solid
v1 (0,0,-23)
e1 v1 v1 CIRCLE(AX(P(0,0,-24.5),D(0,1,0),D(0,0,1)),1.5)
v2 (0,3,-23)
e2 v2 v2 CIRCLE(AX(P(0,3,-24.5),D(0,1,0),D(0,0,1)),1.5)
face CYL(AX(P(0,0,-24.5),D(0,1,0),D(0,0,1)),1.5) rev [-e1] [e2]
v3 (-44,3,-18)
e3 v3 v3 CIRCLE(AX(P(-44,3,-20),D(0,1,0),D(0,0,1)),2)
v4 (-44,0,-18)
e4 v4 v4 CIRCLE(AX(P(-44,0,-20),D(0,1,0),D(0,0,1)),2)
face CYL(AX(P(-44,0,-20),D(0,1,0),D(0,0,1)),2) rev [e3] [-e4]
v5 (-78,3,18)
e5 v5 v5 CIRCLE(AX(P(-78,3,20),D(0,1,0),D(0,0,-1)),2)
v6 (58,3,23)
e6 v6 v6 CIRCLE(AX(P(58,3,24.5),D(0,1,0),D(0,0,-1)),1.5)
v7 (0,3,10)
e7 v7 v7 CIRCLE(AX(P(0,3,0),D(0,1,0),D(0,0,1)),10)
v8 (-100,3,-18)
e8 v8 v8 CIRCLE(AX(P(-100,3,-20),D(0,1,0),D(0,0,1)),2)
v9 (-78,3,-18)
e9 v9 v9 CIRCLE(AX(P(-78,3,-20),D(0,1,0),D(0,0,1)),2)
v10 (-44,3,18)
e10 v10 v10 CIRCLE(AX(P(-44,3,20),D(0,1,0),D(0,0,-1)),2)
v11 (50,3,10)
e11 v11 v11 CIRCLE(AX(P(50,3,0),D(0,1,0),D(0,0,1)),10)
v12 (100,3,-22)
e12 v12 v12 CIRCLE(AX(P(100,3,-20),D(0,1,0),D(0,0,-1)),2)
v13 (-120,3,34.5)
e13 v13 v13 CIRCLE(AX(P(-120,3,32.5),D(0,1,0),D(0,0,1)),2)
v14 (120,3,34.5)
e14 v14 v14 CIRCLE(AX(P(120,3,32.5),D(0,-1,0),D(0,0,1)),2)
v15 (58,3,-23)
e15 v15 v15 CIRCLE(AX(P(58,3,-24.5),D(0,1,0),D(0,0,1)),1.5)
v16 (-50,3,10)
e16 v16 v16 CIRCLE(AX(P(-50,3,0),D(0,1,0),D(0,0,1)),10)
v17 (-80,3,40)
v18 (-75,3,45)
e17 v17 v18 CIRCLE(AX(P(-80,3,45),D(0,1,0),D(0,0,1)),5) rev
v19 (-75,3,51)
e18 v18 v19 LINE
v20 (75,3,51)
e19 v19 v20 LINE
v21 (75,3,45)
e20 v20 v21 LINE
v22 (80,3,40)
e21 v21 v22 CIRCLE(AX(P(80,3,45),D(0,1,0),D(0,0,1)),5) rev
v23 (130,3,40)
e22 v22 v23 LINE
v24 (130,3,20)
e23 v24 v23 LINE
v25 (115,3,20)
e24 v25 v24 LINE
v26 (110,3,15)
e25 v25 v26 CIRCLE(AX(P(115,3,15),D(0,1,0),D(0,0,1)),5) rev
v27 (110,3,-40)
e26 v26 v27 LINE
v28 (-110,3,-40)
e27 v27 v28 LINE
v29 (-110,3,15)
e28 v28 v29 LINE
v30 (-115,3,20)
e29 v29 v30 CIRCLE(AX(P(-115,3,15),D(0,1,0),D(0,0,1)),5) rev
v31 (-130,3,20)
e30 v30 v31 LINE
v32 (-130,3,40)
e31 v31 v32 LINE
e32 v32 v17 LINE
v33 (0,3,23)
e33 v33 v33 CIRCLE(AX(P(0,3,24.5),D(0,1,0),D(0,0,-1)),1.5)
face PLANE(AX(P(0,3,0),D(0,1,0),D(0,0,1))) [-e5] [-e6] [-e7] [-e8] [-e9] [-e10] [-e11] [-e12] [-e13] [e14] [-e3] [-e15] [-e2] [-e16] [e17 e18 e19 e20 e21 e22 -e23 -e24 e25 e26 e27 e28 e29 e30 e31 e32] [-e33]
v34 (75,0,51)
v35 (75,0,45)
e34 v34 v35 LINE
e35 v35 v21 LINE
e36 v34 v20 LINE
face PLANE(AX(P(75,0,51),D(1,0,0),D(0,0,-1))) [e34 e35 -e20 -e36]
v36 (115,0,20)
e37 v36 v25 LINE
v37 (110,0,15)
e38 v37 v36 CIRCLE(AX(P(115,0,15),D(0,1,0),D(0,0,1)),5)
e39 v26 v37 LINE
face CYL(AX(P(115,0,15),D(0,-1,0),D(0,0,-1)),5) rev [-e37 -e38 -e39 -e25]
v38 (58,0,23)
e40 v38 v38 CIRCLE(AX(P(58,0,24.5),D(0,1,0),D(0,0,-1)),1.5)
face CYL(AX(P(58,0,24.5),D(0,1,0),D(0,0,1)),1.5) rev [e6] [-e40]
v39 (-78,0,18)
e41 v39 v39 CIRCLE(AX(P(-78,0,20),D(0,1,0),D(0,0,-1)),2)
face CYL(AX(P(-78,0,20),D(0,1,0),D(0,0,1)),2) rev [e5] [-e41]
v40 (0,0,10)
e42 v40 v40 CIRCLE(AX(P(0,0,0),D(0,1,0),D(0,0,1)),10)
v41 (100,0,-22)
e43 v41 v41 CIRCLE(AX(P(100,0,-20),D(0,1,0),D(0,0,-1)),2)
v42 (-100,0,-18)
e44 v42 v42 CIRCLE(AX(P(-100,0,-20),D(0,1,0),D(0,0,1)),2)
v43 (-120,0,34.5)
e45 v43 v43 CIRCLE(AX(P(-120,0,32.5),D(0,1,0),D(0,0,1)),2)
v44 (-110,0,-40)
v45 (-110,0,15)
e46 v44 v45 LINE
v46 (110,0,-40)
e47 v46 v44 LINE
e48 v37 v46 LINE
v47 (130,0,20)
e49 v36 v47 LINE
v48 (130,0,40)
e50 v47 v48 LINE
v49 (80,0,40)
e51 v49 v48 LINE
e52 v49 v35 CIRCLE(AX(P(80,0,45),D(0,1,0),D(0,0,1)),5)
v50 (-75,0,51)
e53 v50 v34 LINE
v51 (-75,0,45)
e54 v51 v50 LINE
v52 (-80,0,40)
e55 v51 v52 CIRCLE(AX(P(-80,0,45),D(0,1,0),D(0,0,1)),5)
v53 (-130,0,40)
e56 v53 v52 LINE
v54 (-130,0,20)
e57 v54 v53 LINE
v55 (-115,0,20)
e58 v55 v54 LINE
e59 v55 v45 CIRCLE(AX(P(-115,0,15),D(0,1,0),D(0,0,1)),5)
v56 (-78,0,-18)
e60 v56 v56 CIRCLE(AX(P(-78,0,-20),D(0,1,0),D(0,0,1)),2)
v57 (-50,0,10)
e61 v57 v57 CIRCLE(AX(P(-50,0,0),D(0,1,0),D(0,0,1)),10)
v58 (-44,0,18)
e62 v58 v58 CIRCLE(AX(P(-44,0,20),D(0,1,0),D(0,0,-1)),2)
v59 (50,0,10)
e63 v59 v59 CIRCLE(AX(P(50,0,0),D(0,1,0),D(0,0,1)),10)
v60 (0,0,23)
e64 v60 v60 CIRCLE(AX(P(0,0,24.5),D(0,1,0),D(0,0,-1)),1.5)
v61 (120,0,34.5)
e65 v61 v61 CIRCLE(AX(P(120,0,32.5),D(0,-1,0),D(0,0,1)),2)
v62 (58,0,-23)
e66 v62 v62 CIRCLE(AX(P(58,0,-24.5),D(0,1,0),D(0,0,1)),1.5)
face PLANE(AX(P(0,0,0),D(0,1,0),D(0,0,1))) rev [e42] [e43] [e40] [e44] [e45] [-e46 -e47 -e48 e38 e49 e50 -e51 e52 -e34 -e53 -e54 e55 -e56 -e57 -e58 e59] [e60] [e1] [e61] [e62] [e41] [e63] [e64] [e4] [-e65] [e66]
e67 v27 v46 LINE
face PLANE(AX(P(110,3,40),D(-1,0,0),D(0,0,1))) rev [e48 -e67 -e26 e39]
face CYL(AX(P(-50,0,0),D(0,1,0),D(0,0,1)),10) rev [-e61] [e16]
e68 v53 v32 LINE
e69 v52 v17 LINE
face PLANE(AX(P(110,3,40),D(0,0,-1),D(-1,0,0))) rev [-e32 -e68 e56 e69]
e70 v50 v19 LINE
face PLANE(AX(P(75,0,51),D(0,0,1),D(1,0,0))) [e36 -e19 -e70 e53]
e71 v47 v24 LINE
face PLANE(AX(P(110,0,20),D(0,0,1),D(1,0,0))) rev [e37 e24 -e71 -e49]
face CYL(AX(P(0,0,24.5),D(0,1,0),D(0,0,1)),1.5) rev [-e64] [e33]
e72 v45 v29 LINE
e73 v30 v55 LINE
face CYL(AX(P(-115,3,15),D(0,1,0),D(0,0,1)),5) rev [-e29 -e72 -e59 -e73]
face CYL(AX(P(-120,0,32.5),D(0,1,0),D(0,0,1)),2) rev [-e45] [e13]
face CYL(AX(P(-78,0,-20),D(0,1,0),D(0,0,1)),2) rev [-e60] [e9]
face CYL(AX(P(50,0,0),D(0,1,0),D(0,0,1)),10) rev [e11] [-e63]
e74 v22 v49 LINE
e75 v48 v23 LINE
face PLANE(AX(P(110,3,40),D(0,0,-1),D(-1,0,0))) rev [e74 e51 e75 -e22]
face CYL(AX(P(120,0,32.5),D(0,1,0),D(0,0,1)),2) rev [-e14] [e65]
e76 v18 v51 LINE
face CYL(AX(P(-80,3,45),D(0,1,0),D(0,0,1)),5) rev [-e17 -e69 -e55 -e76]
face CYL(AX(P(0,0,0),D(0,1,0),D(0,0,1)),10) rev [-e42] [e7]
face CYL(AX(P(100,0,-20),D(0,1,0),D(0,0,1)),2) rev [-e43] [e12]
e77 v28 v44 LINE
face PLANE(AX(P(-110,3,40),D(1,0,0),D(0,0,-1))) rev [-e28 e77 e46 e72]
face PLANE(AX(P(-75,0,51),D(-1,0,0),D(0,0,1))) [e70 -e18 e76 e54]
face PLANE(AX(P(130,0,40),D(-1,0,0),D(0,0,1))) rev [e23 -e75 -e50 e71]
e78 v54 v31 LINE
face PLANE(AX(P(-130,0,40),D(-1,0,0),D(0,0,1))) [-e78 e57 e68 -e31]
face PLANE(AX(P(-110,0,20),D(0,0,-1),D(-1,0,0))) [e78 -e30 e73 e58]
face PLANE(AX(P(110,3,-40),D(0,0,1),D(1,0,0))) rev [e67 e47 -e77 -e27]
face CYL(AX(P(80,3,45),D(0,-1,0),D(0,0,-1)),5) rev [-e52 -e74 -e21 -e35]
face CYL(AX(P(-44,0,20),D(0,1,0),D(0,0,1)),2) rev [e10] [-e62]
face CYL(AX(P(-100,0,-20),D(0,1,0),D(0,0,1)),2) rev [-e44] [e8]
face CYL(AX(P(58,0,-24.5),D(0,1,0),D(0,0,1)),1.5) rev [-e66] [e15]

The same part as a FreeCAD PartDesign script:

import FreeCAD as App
import Part
import Sketcher
Q = App.Units.Quantity


def edges_at(feature, points):
    """Names of the edges that pass closest to the given points."""
    edges = feature.Shape.Edges
    near = lambda p: min(range(len(edges)), key=lambda i: edges[i].distToShape(Part.Vertex(*p))[0])
    return sorted({f"Edge{near(p) + 1}" for p in points})


def add_polygon(sketch, points):
    """Adds a closed chain of lines whose ends are joined by coincident constraints."""
    first, n = sketch.GeometryCount, len(points)
    for a, b in zip(points, points[1:] + points[:1]):
        sketch.addGeometry(Part.LineSegment(App.Vector(*a, 0), App.Vector(*b, 0)), False)
    for i in range(n):
        sketch.addConstraint(Sketcher.Constraint("Coincident", first + i, 2, first + (i + 1) % n, 1))

doc = App.newDocument("Part")
body = doc.addObject("PartDesign::Body", "Body")

# Sketch on XZ plane
sketch1 = body.newObject("Sketcher::SketchObject", "Sketch")
sketch1.AttachmentSupport = (doc.getObject("XZ_Plane"), [""])
sketch1.MapMode = "FlatFace"
add_polygon(sketch1, [(-110, -40), (-110, 40), (110, 40), (110, -40)])  # lines 0-3
sketch1.addConstraint(Sketcher.Constraint("Vertical", 0))
sketch1.addConstraint(Sketcher.Constraint("Horizontal", 1))
sketch1.addConstraint(Sketcher.Constraint("Vertical", 2))
sketch1.addConstraint(Sketcher.Constraint("Horizontal", 3))
sketch1.addConstraint(Sketcher.Constraint("Symmetric", 0, 2, 2, 2, -1, 1))
sketch1.addConstraint(Sketcher.Constraint("DistanceX", 1, 1, 1, 2, Q("220 mm")))
sketch1.addConstraint(Sketcher.Constraint("DistanceY", 0, 1, 0, 2, Q("80 mm")))
pad1 = body.newObject("PartDesign::Pad", "Pad")
pad1.Profile = sketch1
pad1.Length = 3
pad1.Reversed = True

# Sketch on XZ plane
sketch2 = body.newObject("Sketcher::SketchObject", "Sketch001")
sketch2.AttachmentSupport = (doc.getObject("XZ_Plane"), [""])
sketch2.MapMode = "FlatFace"
sketch2.AttachmentOffset = App.Placement(App.Vector(0, 0, -3), App.Rotation())
add_polygon(sketch2, [(-130, 20), (-130, 40), (-110, 40), (-110, 20)])  # lines 0-3
sketch2.addGeometry(Part.Circle(App.Vector(-120, 32.5, 0), App.Vector(0, 0, 1), 2), False)  # 4
sketch2.addConstraint(Sketcher.Constraint("Vertical", 0))
sketch2.addConstraint(Sketcher.Constraint("Horizontal", 1))
sketch2.addConstraint(Sketcher.Constraint("Vertical", 2))
sketch2.addConstraint(Sketcher.Constraint("Horizontal", 3))
sketch2.addConstraint(Sketcher.Constraint("Equal", 3, 0))
sketch2.addConstraint(Sketcher.Constraint("Diameter", 4, Q("4 mm")))
sketch2.addConstraint(Sketcher.Constraint("DistanceX", 1, 1, 1, 2, Q("20 mm")))
sketch2.addConstraint(Sketcher.Constraint("DistanceX", 4, 3, -1, 1, Q("120 mm")))
sketch2.addConstraint(Sketcher.Constraint("DistanceX", 0, 2, -1, 1, Q("130 mm")))
sketch2.addConstraint(Sketcher.Constraint("DistanceY", -1, 1, 0, 2, Q("40 mm")))
sketch2.addConstraint(Sketcher.Constraint("DistanceY", -1, 1, 4, 3, Q("32.5 mm")))
pad2 = body.newObject("PartDesign::Pad", "Pad001")
pad2.Profile = sketch2
pad2.Length = 3
doc.recompute()

mirrored = body.newObject("PartDesign::Mirrored", "Mirrored")
mirrored.Originals = [pad2]
mirrored.MirrorPlane = (doc.getObject("YZ_Plane"), [""])
body.Tip = mirrored
doc.recompute()

fillet = body.newObject("PartDesign::Fillet", "Fillet")
fillet.Base = (mirrored, edges_at(mirrored, [(-110, 1.5, 20), (110, 1.5, 20)]))
fillet.Radius = 5

# Sketch on XZ plane
sketch3 = body.newObject("Sketcher::SketchObject", "Sketch002")
sketch3.AttachmentSupport = (doc.getObject("XZ_Plane"), [""])
sketch3.MapMode = "FlatFace"
sketch3.AttachmentOffset = App.Placement(App.Vector(0, 0, -3), App.Rotation())
sketch3.addGeometry(Part.Circle(App.Vector(-100, -20, 0), App.Vector(0, 0, 1), 2), False)
sketch3.addGeometry(Part.Circle(App.Vector(100, -20, 0), App.Vector(0, 0, 1), 2), False)
sketch3.addConstraint(Sketcher.Constraint("Equal", 0, 1))
sketch3.addConstraint(Sketcher.Constraint("Symmetric", 0, 3, 1, 3, -2))
sketch3.addConstraint(Sketcher.Constraint("Diameter", 0, Q("4 mm")))
sketch3.addConstraint(Sketcher.Constraint("DistanceX", 0, 3, -1, 1, Q("100 mm")))
sketch3.addConstraint(Sketcher.Constraint("DistanceY", 0, 3, -1, 1, Q("20 mm")))
pocket1 = body.newObject("PartDesign::Pocket", "Pocket")
pocket1.Profile = sketch3
pocket1.Length = 3
pocket1.Reversed = True

# Sketch on XZ plane
sketch4 = body.newObject("Sketcher::SketchObject", "Sketch003")
sketch4.AttachmentSupport = (doc.getObject("XZ_Plane"), [""])
sketch4.MapMode = "FlatFace"
sketch4.AttachmentOffset = App.Placement(App.Vector(0, 0, -3), App.Rotation())
sketch4.addGeometry(Part.Circle(App.Vector(0, -24.5, 0), App.Vector(0, 0, 1), 1.5), False)
sketch4.addGeometry(Part.Circle(App.Vector(58, -24.5, 0), App.Vector(0, 0, 1), 1.5), False)
sketch4.addGeometry(Part.Circle(App.Vector(58, 24.5, 0), App.Vector(0, 0, 1), 1.5), False)
sketch4.addGeometry(Part.Circle(App.Vector(0, 24.5, 0), App.Vector(0, 0, 1), 1.5), False)
sketch4.addConstraint(Sketcher.Constraint("Equal", 0, 1))
sketch4.addConstraint(Sketcher.Constraint("Equal", 1, 2))
sketch4.addConstraint(Sketcher.Constraint("Equal", 2, 3))
sketch4.addConstraint(Sketcher.Constraint("Symmetric", 0, 3, 3, 3, -1, 1))
sketch4.addConstraint(Sketcher.Constraint("Symmetric", 1, 3, 2, 3, -1))
sketch4.addConstraint(Sketcher.Constraint("PointOnObject", 0, 3, -2))
sketch4.addConstraint(Sketcher.Constraint("Horizontal", 0, 3, 1, 3))
sketch4.addConstraint(Sketcher.Constraint("Diameter", 0, Q("3 mm")))
sketch4.addConstraint(Sketcher.Constraint("DistanceX", -1, 1, 1, 3, Q("58 mm")))
sketch4.addConstraint(Sketcher.Constraint("DistanceY", 1, 3, 2, 3, Q("49 mm")))
pocket2 = body.newObject("PartDesign::Pocket", "Pocket001")
pocket2.Profile = sketch4
pocket2.Length = 3
pocket2.Reversed = True

# Sketch on XZ plane
sketch5 = body.newObject("Sketcher::SketchObject", "Sketch004")
sketch5.AttachmentSupport = (doc.getObject("XZ_Plane"), [""])
sketch5.MapMode = "FlatFace"
sketch5.AttachmentOffset = App.Placement(App.Vector(0, 0, -3), App.Rotation())
add_polygon(sketch5, [(-75, 29), (-75, 51), (75, 51), (75, 29)])  # lines 0-3
sketch5.addConstraint(Sketcher.Constraint("Vertical", 0))
sketch5.addConstraint(Sketcher.Constraint("Horizontal", 1))
sketch5.addConstraint(Sketcher.Constraint("Vertical", 2))
sketch5.addConstraint(Sketcher.Constraint("Horizontal", 3))
sketch5.addConstraint(Sketcher.Constraint("DistanceX", 1, 1, 1, 2, Q("150 mm")))
sketch5.addConstraint(Sketcher.Constraint("DistanceY", 0, 1, 0, 2, Q("22 mm")))
sketch5.addConstraint(Sketcher.Constraint("DistanceX", 0, 2, -1, 1, Q("75 mm")))
sketch5.addConstraint(Sketcher.Constraint("DistanceY", -1, 1, 0, 2, Q("51 mm")))
pad3 = body.newObject("PartDesign::Pad", "Pad002")
pad3.Profile = sketch5
pad3.Length = 3
doc.recompute()

fillet2 = body.newObject("PartDesign::Fillet", "Fillet001")
fillet2.Base = (pad3, edges_at(pad3, [(-75, 1.5, 40), (75, 1.5, 40)]))
fillet2.Radius = 5

# Sketch on XZ plane
sketch6 = body.newObject("Sketcher::SketchObject", "Sketch005")
sketch6.AttachmentSupport = (doc.getObject("XZ_Plane"), [""])
sketch6.MapMode = "FlatFace"
sketch6.AttachmentOffset = App.Placement(App.Vector(0, 0, -3), App.Rotation())
sketch6.addGeometry(Part.Circle(App.Vector(-50, 0, 0), App.Vector(0, 0, 1), 10), False)
sketch6.addGeometry(Part.Circle(App.Vector(0, 0, 0), App.Vector(0, 0, 1), 10), False)
sketch6.addGeometry(Part.Circle(App.Vector(50, 0, 0), App.Vector(0, 0, 1), 10), False)
sketch6.addConstraint(Sketcher.Constraint("Coincident", 1, 3, -1, 1))
sketch6.addConstraint(Sketcher.Constraint("Equal", 0, 1))
sketch6.addConstraint(Sketcher.Constraint("Equal", 1, 2))
sketch6.addConstraint(Sketcher.Constraint("Symmetric", 0, 3, 2, 3, -1, 1))
sketch6.addConstraint(Sketcher.Constraint("PointOnObject", 0, 3, -1))
sketch6.addConstraint(Sketcher.Constraint("Diameter", 0, Q("20 mm")))
sketch6.addConstraint(Sketcher.Constraint("DistanceX", 0, 3, -1, 1, Q("50 mm")))
pocket3 = body.newObject("PartDesign::Pocket", "Pocket002")
pocket3.Profile = sketch6
pocket3.Length = 3
pocket3.Reversed = True

# Sketch on XZ plane
sketch7 = body.newObject("Sketcher::SketchObject", "Sketch006")
sketch7.AttachmentSupport = (doc.getObject("XZ_Plane"), [""])
sketch7.MapMode = "FlatFace"
sketch7.AttachmentOffset = App.Placement(App.Vector(0, 0, -3), App.Rotation())
sketch7.addGeometry(Part.Circle(App.Vector(-78, -20, 0), App.Vector(0, 0, 1), 2), False)
sketch7.addGeometry(Part.Circle(App.Vector(-44, -20, 0), App.Vector(0, 0, 1), 2), False)
sketch7.addGeometry(Part.Circle(App.Vector(-44, 20, 0), App.Vector(0, 0, 1), 2), False)
sketch7.addGeometry(Part.Circle(App.Vector(-78, 20, 0), App.Vector(0, 0, 1), 2), False)
sketch7.addConstraint(Sketcher.Constraint("Equal", 0, 1))
sketch7.addConstraint(Sketcher.Constraint("Equal", 1, 2))
sketch7.addConstraint(Sketcher.Constraint("Equal", 2, 3))
sketch7.addConstraint(Sketcher.Constraint("Symmetric", 1, 3, 2, 3, -1))
sketch7.addConstraint(Sketcher.Constraint("Symmetric", 0, 3, 3, 3, -1))
sketch7.addConstraint(Sketcher.Constraint("Horizontal", 0, 3, 1, 3))
sketch7.addConstraint(Sketcher.Constraint("Diameter", 0, Q("4 mm")))
sketch7.addConstraint(Sketcher.Constraint("DistanceX", 0, 3, -1, 1, Q("78 mm")))
sketch7.addConstraint(Sketcher.Constraint("DistanceY", 0, 3, -1, 1, Q("20 mm")))
sketch7.addConstraint(Sketcher.Constraint("DistanceX", 1, 3, -1, 1, Q("44 mm")))
pocket4 = body.newObject("PartDesign::Pocket", "Pocket003")
pocket4.Profile = sketch7
pocket4.Length = 3
pocket4.Reversed = True

doc.recompute()
